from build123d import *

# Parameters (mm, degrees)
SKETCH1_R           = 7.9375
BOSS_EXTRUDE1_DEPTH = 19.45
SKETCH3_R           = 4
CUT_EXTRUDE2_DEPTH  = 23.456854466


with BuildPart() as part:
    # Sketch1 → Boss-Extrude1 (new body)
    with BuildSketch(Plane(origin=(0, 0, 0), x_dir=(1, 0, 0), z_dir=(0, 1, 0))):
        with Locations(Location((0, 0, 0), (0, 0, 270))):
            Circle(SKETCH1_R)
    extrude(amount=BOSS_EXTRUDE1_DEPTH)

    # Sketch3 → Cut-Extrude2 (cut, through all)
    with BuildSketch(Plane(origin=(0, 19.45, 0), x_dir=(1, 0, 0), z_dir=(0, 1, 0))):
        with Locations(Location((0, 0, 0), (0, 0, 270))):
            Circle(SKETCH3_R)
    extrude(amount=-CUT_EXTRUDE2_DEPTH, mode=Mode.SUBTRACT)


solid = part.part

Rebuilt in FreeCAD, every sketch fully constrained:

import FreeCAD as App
import Part
import Sketcher

doc = App.newDocument("Part")
body = doc.addObject("PartDesign::Body", "Body")

# Sketch on XZ plane
sketch1 = body.newObject("Sketcher::SketchObject", "Sketch")
sketch1.AttachmentSupport = (doc.getObject("XZ_Plane"), [""])
sketch1.MapMode = "FlatFace"
sketch1.addGeometry(Part.Circle(App.Vector(0, 0, 0), App.Vector(0, 0, 1), 8), False)
sketch1.addConstraint(Sketcher.Constraint("Coincident", 0, 3, -1, 1))
sketch1.addConstraint(Sketcher.Constraint("Diameter", 0, 15.875))
pad1 = body.newObject("PartDesign::Pad", "Pad")
pad1.Profile = sketch1
pad1.Length = 19.45
pad1.Reversed = True

# Sketch on XZ plane
sketch2 = body.newObject("Sketcher::SketchObject", "Sketch001")
sketch2.AttachmentSupport = (doc.getObject("XZ_Plane"), [""])
sketch2.MapMode = "FlatFace"
sketch2.AttachmentOffset = App.Placement(App.Vector(0, 0, -19.45), App.Rotation())
sketch2.addGeometry(Part.Circle(App.Vector(0, 0, 0), App.Vector(0, 0, 1), 4), False)
sketch2.addConstraint(Sketcher.Constraint("Coincident", 0, 3, -1, 1))
sketch2.addConstraint(Sketcher.Constraint("Diameter", 0, 8.0))
pocket1 = body.newObject("PartDesign::Pocket", "Pocket")
pocket1.Profile = sketch2
pocket1.Type = "ThroughAll"
pocket1.Reversed = True

doc.recompute()
